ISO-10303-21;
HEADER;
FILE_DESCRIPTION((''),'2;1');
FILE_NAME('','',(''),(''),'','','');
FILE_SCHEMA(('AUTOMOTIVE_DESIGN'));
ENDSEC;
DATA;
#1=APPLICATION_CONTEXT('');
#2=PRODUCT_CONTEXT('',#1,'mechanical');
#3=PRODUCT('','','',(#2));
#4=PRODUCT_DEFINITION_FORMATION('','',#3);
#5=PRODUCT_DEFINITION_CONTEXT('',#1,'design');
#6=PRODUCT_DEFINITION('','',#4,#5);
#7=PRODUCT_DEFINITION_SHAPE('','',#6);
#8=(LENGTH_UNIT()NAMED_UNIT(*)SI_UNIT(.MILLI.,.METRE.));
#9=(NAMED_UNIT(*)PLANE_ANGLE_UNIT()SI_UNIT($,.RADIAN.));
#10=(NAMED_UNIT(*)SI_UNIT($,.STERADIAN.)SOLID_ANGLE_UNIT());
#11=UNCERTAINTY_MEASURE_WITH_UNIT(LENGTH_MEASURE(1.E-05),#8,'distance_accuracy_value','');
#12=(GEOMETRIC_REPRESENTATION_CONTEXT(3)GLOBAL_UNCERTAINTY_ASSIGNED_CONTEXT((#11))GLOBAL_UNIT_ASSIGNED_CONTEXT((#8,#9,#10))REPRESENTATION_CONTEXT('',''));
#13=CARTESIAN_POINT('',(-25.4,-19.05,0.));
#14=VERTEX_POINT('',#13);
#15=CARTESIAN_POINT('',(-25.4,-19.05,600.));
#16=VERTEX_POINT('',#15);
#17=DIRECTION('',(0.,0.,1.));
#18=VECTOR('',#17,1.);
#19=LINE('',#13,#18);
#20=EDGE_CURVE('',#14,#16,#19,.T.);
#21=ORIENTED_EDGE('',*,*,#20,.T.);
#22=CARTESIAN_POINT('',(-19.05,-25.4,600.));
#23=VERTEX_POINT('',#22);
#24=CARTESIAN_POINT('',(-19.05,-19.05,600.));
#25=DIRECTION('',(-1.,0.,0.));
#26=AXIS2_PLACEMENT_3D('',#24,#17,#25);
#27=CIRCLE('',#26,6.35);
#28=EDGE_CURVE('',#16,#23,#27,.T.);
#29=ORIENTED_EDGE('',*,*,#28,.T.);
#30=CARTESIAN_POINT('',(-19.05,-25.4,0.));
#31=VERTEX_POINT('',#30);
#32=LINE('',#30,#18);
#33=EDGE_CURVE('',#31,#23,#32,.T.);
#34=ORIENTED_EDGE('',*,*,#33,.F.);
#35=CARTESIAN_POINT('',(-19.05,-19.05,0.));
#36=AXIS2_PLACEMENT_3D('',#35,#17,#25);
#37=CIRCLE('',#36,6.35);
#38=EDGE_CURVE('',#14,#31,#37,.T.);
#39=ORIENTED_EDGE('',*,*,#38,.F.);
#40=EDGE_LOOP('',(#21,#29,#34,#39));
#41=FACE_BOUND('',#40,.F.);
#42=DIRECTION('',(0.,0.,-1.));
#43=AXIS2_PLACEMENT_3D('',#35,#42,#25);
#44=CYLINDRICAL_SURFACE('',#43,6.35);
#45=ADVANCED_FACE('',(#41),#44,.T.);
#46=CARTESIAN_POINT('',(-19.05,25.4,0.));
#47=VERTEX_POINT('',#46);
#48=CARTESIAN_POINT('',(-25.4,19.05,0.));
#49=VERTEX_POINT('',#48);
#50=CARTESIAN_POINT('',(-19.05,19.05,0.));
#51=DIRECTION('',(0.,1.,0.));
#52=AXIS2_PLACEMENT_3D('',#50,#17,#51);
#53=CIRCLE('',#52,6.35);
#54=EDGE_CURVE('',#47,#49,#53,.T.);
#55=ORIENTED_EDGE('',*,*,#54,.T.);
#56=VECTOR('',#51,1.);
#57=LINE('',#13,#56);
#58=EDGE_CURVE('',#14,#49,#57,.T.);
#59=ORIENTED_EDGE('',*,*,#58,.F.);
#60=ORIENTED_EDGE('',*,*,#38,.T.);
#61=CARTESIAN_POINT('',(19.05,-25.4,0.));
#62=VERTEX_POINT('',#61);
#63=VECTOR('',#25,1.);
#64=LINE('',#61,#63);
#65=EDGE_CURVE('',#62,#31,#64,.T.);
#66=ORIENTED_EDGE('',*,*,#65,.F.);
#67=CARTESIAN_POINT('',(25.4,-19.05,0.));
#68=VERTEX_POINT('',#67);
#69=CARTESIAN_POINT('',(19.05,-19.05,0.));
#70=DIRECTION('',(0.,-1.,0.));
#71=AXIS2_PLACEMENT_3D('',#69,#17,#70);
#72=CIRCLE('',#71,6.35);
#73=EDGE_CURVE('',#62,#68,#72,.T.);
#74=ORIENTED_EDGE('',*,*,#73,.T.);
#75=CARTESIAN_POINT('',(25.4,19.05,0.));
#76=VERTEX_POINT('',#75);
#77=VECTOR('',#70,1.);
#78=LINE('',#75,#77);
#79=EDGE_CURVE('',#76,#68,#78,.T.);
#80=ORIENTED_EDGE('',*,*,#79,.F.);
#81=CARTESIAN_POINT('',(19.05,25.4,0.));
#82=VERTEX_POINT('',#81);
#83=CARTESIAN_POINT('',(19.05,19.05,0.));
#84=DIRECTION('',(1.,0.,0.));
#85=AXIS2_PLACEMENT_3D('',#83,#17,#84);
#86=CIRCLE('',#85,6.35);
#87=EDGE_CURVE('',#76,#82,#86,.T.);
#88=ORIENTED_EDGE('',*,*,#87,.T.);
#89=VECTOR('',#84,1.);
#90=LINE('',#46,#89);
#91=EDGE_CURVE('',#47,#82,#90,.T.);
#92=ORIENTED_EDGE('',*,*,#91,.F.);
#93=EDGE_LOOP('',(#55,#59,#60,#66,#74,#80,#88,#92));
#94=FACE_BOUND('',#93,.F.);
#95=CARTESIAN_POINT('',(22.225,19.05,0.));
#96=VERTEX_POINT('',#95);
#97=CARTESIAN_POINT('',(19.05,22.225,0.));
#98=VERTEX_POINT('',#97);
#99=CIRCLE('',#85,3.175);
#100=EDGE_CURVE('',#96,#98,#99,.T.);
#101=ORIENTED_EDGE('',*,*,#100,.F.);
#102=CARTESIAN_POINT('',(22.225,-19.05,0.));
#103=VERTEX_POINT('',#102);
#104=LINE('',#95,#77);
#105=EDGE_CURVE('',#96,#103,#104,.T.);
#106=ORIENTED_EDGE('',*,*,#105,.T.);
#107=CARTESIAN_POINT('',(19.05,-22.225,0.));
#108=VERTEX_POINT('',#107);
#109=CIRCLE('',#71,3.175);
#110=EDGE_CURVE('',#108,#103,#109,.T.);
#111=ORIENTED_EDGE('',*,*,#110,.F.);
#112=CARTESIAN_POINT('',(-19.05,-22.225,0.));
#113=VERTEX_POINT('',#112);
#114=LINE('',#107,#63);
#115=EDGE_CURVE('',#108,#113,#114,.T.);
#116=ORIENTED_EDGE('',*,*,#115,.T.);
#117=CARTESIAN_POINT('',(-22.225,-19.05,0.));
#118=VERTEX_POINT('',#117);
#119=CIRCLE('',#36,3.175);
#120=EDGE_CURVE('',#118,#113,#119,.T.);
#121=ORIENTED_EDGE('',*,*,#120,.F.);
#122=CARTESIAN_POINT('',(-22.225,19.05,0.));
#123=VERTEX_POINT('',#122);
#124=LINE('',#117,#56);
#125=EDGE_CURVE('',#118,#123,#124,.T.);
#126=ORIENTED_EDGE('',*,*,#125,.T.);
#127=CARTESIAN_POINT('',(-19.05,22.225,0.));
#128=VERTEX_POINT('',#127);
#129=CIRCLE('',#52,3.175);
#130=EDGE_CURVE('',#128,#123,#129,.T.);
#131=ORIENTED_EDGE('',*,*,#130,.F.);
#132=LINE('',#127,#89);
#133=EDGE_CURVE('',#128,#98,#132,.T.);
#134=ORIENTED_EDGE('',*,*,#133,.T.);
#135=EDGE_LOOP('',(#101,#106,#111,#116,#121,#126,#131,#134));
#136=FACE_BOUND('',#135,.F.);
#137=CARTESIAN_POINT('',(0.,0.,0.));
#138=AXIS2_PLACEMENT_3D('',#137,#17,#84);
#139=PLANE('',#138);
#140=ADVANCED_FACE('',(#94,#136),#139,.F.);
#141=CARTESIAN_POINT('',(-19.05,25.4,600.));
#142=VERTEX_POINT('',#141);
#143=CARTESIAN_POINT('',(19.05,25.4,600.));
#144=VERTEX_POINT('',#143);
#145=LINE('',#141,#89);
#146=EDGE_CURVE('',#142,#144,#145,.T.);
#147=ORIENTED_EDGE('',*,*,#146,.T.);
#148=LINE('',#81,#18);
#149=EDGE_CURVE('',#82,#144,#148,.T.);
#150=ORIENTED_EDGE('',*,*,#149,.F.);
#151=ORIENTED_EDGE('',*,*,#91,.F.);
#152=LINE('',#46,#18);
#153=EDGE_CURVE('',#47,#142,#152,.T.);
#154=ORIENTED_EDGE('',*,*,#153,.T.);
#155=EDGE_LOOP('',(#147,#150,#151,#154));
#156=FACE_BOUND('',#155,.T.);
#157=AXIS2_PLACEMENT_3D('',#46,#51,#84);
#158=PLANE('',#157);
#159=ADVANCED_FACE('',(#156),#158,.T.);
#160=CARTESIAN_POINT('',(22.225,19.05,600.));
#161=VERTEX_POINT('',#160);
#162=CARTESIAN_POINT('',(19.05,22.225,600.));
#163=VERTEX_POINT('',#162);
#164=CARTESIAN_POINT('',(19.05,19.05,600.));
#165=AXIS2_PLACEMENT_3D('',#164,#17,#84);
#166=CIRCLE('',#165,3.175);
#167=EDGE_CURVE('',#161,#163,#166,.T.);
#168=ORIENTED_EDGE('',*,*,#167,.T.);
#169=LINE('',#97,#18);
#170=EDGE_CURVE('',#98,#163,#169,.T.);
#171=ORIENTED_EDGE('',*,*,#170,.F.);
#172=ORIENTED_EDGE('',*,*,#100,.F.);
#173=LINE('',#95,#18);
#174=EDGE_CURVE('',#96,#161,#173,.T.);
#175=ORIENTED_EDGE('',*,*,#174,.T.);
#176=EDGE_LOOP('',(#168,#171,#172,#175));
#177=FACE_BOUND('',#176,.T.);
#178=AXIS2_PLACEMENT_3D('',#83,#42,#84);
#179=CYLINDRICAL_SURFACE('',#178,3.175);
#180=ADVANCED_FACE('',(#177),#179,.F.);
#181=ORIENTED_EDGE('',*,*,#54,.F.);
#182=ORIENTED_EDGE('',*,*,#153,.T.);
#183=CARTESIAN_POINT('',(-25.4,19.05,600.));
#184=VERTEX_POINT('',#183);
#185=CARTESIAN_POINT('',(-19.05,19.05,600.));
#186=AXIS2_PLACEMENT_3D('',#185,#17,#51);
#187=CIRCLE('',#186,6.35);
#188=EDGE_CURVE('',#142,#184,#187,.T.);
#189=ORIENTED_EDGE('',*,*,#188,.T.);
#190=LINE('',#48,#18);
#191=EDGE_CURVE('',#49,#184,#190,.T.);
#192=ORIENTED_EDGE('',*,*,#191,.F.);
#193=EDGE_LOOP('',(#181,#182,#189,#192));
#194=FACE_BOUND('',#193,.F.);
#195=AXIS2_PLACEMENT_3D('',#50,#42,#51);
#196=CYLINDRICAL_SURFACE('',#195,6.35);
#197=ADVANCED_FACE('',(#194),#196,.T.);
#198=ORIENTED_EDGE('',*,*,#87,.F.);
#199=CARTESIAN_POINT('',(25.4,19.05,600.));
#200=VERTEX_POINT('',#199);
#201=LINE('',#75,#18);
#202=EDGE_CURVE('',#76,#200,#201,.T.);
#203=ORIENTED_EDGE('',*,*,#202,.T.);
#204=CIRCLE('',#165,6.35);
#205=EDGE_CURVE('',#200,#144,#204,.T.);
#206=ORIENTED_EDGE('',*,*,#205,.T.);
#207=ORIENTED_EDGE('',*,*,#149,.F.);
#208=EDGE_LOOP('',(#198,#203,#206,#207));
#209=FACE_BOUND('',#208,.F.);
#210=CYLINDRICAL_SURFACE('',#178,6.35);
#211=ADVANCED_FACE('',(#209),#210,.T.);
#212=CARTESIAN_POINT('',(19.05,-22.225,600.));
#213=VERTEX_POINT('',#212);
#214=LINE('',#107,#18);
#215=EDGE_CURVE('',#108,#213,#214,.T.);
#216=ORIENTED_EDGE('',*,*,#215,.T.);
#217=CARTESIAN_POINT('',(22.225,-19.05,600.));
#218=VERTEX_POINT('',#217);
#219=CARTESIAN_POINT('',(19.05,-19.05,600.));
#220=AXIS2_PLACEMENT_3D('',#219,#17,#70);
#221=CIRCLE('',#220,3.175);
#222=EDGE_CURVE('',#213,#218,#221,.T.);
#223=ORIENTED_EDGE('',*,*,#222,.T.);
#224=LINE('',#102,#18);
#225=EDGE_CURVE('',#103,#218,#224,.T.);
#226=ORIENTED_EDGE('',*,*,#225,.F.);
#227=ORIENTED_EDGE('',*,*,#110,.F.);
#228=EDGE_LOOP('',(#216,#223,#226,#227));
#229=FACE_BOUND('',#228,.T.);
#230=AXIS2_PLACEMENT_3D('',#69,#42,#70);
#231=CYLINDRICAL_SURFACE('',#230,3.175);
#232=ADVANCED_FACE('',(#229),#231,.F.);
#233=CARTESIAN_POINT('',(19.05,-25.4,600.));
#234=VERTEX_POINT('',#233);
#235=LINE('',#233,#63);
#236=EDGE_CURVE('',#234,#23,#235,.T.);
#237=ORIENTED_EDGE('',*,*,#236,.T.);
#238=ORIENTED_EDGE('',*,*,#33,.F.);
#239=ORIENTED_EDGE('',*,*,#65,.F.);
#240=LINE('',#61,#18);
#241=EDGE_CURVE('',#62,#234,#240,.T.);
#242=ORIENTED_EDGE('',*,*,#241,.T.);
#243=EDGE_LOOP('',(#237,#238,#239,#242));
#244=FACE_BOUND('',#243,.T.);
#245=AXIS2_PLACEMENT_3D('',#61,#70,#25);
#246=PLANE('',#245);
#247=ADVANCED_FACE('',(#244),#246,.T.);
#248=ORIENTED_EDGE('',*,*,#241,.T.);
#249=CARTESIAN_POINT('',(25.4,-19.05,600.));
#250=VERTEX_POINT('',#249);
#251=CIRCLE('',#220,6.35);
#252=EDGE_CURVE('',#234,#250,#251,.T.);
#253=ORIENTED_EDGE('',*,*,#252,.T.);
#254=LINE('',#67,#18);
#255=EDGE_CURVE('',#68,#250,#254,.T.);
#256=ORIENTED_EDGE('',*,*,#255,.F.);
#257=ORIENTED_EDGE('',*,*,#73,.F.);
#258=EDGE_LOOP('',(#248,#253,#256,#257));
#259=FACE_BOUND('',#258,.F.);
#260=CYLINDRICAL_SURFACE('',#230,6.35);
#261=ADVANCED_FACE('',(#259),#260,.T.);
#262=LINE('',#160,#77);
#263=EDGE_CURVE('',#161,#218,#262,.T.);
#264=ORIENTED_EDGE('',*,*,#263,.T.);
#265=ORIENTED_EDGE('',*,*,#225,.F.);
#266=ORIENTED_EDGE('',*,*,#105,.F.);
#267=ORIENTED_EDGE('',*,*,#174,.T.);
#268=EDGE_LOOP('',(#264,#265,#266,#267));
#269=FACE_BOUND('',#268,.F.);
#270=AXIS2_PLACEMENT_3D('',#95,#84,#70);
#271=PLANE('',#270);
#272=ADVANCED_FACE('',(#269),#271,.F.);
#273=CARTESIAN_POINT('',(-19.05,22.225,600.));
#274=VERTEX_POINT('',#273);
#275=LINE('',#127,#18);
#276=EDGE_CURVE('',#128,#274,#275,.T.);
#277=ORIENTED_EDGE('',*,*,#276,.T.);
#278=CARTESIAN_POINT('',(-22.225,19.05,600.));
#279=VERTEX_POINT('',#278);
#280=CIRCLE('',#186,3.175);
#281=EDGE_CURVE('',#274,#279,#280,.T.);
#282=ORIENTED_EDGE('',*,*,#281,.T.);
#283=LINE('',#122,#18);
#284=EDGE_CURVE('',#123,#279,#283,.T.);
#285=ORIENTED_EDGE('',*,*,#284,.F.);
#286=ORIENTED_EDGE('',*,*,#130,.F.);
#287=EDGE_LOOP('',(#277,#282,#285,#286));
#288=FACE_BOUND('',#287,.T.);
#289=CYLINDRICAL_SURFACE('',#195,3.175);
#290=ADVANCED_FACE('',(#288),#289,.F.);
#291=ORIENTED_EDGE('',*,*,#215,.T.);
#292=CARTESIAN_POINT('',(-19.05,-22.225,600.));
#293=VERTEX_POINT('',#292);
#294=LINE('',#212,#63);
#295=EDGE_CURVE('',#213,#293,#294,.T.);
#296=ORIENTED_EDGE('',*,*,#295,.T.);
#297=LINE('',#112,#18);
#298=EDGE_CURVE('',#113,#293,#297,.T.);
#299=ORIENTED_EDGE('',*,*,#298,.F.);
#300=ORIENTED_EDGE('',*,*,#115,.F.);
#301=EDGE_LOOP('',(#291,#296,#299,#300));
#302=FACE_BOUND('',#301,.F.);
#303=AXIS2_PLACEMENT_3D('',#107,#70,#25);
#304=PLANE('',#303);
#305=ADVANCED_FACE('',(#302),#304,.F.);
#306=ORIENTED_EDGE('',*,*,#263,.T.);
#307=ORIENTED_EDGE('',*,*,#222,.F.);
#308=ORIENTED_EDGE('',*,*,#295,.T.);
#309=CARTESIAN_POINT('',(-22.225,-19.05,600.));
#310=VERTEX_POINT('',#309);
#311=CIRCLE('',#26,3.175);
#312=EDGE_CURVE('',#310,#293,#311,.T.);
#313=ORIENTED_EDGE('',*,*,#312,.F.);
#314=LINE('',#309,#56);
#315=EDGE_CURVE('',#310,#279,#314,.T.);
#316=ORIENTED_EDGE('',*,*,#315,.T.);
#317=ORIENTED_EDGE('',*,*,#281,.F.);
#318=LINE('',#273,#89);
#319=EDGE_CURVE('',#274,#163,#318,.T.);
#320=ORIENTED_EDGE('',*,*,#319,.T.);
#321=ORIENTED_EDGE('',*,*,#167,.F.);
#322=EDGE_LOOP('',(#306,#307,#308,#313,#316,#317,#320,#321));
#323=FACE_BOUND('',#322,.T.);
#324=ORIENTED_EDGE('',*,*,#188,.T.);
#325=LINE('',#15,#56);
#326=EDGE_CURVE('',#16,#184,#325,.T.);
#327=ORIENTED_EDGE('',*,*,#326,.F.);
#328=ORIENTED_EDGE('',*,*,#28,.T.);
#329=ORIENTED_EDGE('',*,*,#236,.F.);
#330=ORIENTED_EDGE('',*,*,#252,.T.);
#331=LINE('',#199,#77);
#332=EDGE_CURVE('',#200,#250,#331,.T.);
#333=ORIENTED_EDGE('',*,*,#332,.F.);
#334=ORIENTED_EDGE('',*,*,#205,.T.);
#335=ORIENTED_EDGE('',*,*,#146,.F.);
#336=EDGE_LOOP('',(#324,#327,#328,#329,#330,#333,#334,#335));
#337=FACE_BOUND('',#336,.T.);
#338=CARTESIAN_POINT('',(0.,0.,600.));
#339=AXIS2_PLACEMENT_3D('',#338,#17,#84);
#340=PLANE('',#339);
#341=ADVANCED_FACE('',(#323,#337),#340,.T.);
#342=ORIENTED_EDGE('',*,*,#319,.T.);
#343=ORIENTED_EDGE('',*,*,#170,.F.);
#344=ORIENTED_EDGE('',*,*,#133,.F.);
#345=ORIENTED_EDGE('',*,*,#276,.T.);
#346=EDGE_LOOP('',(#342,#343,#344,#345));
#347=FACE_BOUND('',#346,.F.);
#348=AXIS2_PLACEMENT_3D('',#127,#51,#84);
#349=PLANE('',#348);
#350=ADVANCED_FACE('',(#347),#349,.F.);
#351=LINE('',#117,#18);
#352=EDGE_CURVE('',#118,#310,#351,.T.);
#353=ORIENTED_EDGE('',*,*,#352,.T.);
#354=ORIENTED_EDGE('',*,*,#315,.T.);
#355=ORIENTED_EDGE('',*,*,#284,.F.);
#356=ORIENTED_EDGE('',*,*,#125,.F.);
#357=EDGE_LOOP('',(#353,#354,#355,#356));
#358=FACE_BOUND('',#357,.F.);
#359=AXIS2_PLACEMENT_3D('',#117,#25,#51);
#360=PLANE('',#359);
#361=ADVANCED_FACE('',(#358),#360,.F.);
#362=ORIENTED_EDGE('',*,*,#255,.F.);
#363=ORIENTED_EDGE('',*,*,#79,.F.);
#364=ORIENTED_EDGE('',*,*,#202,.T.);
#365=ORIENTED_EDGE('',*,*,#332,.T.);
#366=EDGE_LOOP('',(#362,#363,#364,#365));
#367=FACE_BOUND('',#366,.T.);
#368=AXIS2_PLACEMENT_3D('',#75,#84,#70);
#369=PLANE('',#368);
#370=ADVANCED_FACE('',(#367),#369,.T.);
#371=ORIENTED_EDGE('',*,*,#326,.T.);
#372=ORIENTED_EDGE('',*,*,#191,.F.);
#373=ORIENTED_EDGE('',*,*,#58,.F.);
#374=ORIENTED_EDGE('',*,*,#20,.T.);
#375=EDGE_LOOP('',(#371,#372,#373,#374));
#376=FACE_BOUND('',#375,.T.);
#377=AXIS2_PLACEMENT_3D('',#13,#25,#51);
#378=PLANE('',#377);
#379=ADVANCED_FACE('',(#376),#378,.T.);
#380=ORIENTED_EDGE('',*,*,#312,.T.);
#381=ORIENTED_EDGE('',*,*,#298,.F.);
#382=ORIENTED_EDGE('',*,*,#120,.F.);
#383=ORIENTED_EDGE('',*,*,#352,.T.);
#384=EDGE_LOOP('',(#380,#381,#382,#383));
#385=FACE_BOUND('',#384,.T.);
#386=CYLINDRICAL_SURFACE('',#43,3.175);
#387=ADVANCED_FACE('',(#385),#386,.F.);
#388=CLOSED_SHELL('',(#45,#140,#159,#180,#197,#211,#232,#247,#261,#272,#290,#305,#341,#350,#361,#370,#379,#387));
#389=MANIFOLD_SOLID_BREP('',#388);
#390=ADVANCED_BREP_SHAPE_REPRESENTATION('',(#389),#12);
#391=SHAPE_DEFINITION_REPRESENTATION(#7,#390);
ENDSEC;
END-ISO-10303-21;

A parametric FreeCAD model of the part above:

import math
import FreeCAD as App
import Part
import Sketcher
Q = App.Units.Quantity

doc = App.newDocument("Part")
params = doc.addObject("Spreadsheet::Sheet", "Params")
for row, (alias, value) in enumerate([
    ("sketch1_radius", "0.25 in"),
    ("sketch1_radius2", "0.125 in"),
    ("pad1_length", "600 mm"),
], start=1):
    params.set(f"A{row}", alias)
    params.set(f"B{row}", "=" + value)
    params.setAlias(f"B{row}", alias)

body = doc.addObject("PartDesign::Body", "Body")

# Sketch on XY plane
sketch1 = body.newObject("Sketcher::SketchObject", "Sketch")
sketch1.AttachmentSupport = (doc.getObject("XY_Plane"), [""])
sketch1.MapMode = "FlatFace"
sketch1.addGeometry([
    Part.LineSegment(App.Vector(-25.4, 19.05, 0), App.Vector(-25.4, -19.05, 0)),  # 0
    Part.ArcOfCircle(Part.Circle(App.Vector(-19.05, -19.05, 0), App.Vector(0, 0, 1), 6.35), math.radians(180), math.radians(270)),  # 1
    Part.LineSegment(App.Vector(-19.05, -25.4, 0), App.Vector(19.05, -25.4, 0)),  # 2
    Part.ArcOfCircle(Part.Circle(App.Vector(19.05, -19.05, 0), App.Vector(0, 0, 1), 6.35), math.radians(-90), math.radians(0)),  # 3
    Part.LineSegment(App.Vector(25.4, -19.05, 0), App.Vector(25.4, 19.05, 0)),  # 4
    Part.ArcOfCircle(Part.Circle(App.Vector(19.05, 19.05, 0), App.Vector(0, 0, 1), 6.35), math.radians(0), math.radians(90)),  # 5
    Part.LineSegment(App.Vector(19.05, 25.4, 0), App.Vector(-19.05, 25.4, 0)),  # 6
    Part.ArcOfCircle(Part.Circle(App.Vector(-19.05, 19.05, 0), App.Vector(0, 0, 1), 6.35), math.radians(90), math.radians(180)),  # 7
    Part.ArcOfCircle(Part.Circle(App.Vector(-19.05, 19.05, 0), App.Vector(0, 0, 1), 3.175), math.radians(90), math.radians(180)),  # 8
    Part.LineSegment(App.Vector(-19.05, 22.225, 0), App.Vector(19.05, 22.225, 0)),  # 9
    Part.ArcOfCircle(Part.Circle(App.Vector(19.05, 19.05, 0), App.Vector(0, 0, 1), 3.175), math.radians(0), math.radians(90)),  # 10
    Part.LineSegment(App.Vector(22.225, 19.05, 0), App.Vector(22.225, -19.05, 0)),  # 11
    Part.ArcOfCircle(Part.Circle(App.Vector(19.05, -19.05, 0), App.Vector(0, 0, 1), 3.175), math.radians(-90), math.radians(0)),  # 12
    Part.LineSegment(App.Vector(19.05, -22.225, 0), App.Vector(-19.05, -22.225, 0)),  # 13
    Part.ArcOfCircle(Part.Circle(App.Vector(-19.05, -19.05, 0), App.Vector(0, 0, 1), 3.175), math.radians(180), math.radians(270)),  # 14
    Part.LineSegment(App.Vector(-22.225, -19.05, 0), App.Vector(-22.225, 19.05, 0)),  # 15
], False)
sketch1.addConstraint([
    Sketcher.Constraint("Tangent", 0, 2, 1, 1),
    Sketcher.Constraint("Tangent", 1, 2, 2, 1),
    Sketcher.Constraint("Tangent", 2, 2, 3, 1),
    Sketcher.Constraint("Tangent", 3, 2, 4, 1),
    Sketcher.Constraint("Tangent", 4, 2, 5, 1),
    Sketcher.Constraint("Tangent", 5, 2, 6, 1),
    Sketcher.Constraint("Tangent", 6, 2, 7, 1),
    Sketcher.Constraint("Tangent", 7, 2, 0, 1),
    Sketcher.Constraint("Tangent", 8, 1, 9, 1),
    Sketcher.Constraint("Tangent", 9, 2, 10, 2),
    Sketcher.Constraint("Tangent", 10, 1, 11, 1),
    Sketcher.Constraint("Tangent", 11, 2, 12, 2),
    Sketcher.Constraint("Tangent", 12, 1, 13, 1),
    Sketcher.Constraint("Tangent", 13, 2, 14, 2),
    Sketcher.Constraint("Tangent", 14, 1, 15, 1),
    Sketcher.Constraint("Tangent", 15, 2, 8, 2),
    Sketcher.Constraint("Vertical", 0),
    Sketcher.Constraint("Horizontal", 2),
    Sketcher.Constraint("Vertical", 4),
    Sketcher.Constraint("Horizontal", 6),
    Sketcher.Constraint("Horizontal", 9),
    Sketcher.Constraint("Vertical", 11),
    Sketcher.Constraint("Horizontal", 13),
    Sketcher.Constraint("Vertical", 15),
    Sketcher.Constraint("Coincident", 8, 3, 7, 3),
    Sketcher.Constraint("Coincident", 10, 3, 5, 3),
    Sketcher.Constraint("Coincident", 12, 3, 3, 3),
    Sketcher.Constraint("Equal", 1, 3),
    Sketcher.Constraint("Equal", 3, 5),
    Sketcher.Constraint("Equal", 5, 7),
    Sketcher.Constraint("Equal", 12, 14),
    Sketcher.Constraint("Symmetric", 1, 3, 5, 3, -1, 1),
    Sketcher.Constraint("Equal", 13, 0),
    Sketcher.Constraint("Radius", 1, Q("0.25 in")),
    Sketcher.Constraint("DistanceX", 0, 2, -1, 1, Q("1 in")),
    Sketcher.Constraint("Radius", 8, Q("0.125 in")),
])
sketch1.setExpression("Constraints[33]", "Params.sketch1_radius")
sketch1.setExpression("Constraints[35]", "Params.sketch1_radius2")
pad1 = body.newObject("PartDesign::Pad", "Pad")
pad1.Profile = sketch1
pad1.setExpression("Length", "Params.pad1_length")

doc.recompute()
